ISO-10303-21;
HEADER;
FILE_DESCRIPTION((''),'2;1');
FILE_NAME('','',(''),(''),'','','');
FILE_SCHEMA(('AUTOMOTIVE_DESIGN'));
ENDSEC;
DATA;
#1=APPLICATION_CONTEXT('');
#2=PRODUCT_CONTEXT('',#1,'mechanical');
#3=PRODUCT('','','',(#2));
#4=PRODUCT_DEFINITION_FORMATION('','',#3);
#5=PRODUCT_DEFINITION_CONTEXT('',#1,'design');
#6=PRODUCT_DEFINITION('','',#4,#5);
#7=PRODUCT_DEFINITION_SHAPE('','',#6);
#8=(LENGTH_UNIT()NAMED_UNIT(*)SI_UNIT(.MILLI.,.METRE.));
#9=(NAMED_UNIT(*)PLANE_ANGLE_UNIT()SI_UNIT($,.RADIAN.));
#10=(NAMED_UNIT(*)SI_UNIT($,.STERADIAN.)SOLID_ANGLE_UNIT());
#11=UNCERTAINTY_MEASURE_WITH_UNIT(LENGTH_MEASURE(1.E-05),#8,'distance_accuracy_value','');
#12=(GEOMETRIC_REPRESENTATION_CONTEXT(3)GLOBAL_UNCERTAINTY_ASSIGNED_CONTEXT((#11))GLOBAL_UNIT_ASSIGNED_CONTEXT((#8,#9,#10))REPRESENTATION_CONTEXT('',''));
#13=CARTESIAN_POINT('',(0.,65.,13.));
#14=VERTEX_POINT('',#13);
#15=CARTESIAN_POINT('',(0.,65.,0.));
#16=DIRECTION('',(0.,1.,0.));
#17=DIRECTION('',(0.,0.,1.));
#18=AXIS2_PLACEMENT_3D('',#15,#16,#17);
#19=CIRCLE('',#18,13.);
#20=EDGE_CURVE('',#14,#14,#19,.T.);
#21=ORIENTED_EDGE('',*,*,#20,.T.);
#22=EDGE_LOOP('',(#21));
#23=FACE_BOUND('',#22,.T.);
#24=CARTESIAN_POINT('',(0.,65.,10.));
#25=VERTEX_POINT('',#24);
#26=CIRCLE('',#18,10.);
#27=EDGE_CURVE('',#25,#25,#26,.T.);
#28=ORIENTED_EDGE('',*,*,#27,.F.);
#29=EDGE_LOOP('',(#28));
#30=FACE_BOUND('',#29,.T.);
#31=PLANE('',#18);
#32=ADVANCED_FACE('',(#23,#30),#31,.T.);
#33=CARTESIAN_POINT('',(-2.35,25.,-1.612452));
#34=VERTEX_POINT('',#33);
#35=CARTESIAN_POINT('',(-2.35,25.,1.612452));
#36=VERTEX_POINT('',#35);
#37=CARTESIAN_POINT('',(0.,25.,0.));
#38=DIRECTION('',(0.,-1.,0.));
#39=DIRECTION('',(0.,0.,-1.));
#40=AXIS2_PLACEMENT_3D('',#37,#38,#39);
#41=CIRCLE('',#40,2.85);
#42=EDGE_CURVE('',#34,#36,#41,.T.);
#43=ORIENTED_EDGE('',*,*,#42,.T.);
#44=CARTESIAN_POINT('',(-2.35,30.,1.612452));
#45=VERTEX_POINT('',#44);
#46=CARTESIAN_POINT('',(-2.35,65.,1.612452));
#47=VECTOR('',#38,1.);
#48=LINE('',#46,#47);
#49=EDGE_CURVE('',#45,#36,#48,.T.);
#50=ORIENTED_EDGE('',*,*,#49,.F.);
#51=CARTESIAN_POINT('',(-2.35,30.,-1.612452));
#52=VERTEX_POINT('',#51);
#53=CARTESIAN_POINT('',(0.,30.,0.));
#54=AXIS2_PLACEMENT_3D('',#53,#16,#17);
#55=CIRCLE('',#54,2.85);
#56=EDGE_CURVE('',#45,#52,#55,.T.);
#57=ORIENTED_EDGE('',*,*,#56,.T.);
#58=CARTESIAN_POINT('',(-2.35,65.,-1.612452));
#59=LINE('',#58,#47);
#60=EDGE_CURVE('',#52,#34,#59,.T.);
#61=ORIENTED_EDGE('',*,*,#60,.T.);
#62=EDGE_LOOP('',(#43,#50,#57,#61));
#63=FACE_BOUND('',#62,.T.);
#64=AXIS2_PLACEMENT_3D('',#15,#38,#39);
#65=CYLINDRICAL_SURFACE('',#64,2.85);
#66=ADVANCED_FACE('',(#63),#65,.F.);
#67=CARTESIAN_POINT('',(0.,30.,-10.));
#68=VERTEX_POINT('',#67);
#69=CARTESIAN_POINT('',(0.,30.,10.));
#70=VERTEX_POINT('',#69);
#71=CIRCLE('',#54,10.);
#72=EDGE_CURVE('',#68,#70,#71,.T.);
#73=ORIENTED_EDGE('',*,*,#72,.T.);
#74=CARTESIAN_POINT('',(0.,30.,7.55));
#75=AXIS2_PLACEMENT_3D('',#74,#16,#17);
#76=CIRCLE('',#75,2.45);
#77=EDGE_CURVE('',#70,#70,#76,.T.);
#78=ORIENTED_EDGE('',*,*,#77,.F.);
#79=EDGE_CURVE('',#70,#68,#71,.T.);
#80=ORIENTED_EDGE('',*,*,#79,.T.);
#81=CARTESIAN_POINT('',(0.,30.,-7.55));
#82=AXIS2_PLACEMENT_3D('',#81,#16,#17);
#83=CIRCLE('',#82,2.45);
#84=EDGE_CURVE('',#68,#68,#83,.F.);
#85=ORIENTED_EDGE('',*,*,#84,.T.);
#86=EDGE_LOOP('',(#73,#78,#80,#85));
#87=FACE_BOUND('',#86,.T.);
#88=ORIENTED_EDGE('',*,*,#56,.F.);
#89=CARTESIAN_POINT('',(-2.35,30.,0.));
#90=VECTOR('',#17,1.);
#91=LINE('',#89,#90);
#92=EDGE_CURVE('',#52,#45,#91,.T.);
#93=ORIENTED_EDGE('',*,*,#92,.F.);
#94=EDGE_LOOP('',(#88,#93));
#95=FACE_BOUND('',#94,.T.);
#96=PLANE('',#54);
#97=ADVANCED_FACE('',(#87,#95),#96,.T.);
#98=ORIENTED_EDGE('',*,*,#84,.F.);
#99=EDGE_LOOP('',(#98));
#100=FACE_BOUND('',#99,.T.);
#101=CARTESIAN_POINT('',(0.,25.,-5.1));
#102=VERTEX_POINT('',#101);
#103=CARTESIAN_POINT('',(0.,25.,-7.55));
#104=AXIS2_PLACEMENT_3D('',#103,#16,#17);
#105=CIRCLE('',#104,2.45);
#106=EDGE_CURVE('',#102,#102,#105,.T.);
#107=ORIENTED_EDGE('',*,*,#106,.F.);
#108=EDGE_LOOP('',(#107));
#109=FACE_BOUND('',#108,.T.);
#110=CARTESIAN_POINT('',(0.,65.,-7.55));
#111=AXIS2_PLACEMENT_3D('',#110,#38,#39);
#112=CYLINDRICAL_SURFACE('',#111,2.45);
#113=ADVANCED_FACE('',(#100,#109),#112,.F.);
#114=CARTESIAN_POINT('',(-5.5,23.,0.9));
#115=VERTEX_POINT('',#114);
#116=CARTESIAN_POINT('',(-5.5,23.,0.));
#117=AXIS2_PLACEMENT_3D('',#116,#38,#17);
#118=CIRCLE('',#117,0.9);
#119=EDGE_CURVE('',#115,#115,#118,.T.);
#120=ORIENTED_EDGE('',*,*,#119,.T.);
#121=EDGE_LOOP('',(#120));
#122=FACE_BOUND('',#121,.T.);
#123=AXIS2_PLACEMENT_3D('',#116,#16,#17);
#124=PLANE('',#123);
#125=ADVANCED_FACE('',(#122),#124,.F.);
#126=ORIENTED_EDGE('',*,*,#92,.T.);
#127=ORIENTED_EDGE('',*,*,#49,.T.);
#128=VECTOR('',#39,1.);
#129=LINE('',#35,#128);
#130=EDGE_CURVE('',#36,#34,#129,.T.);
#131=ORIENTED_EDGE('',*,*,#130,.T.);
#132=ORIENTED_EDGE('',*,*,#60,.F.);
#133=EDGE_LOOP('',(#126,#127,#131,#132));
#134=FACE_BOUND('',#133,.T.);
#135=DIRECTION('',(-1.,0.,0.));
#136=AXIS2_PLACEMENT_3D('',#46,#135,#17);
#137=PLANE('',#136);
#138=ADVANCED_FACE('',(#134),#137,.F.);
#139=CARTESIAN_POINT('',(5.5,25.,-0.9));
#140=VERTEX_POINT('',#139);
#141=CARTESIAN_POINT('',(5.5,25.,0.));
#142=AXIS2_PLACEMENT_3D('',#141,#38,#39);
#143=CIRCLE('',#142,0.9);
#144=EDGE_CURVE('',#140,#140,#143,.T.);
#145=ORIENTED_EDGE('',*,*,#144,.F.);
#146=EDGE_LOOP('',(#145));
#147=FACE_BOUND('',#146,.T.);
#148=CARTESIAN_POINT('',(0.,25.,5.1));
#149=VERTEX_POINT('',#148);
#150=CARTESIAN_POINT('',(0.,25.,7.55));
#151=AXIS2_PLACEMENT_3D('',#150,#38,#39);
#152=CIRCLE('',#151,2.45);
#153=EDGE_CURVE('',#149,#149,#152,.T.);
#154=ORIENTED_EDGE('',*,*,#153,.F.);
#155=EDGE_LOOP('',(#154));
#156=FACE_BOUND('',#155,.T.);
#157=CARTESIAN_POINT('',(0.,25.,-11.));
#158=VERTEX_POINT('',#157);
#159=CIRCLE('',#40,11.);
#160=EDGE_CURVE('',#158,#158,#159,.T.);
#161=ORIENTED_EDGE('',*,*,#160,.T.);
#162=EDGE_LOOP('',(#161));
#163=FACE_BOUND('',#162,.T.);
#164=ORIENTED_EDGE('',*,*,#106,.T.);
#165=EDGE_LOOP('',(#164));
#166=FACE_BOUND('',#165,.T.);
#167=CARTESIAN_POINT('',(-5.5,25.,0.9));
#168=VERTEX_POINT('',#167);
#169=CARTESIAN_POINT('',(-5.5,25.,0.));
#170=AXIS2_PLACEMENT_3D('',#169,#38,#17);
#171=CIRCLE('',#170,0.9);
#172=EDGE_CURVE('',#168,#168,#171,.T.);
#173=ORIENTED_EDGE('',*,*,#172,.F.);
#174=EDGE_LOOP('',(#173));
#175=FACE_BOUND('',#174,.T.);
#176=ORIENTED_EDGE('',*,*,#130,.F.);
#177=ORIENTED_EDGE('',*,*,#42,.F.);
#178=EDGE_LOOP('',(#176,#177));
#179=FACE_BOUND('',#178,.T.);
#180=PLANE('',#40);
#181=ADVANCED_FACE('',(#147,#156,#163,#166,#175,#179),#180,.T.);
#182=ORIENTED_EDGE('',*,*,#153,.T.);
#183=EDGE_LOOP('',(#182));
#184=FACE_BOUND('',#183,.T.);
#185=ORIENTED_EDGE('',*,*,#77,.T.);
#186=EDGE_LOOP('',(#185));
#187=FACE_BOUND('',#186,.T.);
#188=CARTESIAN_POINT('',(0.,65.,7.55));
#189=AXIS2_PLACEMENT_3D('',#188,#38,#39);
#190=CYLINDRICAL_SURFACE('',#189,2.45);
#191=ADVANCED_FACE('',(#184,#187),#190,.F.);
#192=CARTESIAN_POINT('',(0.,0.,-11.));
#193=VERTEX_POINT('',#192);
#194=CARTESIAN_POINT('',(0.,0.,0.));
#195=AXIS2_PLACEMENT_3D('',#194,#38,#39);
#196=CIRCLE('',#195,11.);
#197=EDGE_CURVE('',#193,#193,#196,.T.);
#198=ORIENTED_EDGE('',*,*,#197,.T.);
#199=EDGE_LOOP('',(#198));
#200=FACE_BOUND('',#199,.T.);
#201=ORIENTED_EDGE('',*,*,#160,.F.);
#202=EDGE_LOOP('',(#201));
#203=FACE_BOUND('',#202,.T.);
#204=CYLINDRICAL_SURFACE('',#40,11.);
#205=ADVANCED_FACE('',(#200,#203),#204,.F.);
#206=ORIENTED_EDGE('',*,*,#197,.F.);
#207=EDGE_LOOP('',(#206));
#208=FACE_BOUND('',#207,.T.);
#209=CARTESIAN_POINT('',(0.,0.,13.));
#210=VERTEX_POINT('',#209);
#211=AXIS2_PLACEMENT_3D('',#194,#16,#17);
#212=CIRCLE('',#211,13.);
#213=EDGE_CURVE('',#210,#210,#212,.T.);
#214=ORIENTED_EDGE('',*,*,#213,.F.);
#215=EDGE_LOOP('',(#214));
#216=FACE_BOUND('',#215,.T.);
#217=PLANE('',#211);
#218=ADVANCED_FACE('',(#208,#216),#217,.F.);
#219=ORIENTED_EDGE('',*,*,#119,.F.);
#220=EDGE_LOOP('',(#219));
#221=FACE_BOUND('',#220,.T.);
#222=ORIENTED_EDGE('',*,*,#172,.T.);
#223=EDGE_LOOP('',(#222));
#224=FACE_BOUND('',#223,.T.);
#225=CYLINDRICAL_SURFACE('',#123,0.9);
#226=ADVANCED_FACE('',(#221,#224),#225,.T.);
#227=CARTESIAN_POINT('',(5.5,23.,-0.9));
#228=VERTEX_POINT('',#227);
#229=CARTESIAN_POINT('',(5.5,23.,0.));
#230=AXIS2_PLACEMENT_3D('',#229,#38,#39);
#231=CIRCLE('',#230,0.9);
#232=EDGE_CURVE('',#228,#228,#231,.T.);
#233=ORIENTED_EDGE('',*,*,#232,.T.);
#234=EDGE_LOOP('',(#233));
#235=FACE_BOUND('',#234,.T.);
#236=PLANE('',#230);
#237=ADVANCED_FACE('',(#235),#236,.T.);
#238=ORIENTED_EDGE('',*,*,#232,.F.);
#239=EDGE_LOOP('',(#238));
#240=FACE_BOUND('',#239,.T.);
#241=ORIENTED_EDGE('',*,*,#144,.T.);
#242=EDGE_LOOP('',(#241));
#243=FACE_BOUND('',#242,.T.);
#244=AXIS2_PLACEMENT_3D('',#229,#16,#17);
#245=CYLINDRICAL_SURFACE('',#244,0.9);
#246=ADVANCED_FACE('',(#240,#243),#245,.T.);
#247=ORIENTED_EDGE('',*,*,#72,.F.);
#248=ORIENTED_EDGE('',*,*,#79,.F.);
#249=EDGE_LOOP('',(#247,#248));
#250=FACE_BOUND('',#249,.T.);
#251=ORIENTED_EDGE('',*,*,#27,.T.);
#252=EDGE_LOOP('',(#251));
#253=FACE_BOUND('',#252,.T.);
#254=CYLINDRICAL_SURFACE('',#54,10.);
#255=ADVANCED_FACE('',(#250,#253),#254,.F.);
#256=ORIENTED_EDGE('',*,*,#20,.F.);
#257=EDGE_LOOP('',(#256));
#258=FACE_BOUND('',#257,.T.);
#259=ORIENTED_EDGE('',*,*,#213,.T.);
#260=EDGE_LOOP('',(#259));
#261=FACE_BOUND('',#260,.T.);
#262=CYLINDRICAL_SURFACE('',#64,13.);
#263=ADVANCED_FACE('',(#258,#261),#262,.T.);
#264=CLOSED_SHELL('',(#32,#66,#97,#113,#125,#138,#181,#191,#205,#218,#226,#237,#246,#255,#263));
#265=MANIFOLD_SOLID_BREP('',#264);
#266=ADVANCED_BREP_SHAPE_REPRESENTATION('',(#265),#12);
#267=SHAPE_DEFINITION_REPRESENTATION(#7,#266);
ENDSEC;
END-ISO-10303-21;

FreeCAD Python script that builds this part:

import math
import FreeCAD as App
import Part
import Sketcher
from FreeCAD import Vector

doc = App.newDocument("Part")
body = doc.addObject("PartDesign::Body", "Body")

# Sketch on XZ plane
sketch1 = body.newObject("Sketcher::SketchObject", "Sketch")
sketch1.AttachmentSupport = (doc.getObject("XZ_Plane"), [""])
sketch1.MapMode = "FlatFace"
sketch1.addGeometry(Part.Circle(Vector(0, 0, 0), Vector(0, 0, 1), 13), False)
sketch1.addConstraint([
    Sketcher.Constraint("Coincident", 0, 3, -1, 1),
    Sketcher.Constraint("Diameter", 0, 26.0),
])
pad1 = body.newObject("PartDesign::Pad", "Pad")
pad1.Profile = sketch1
pad1.Length = 65
pad1.Reversed = True

# Sketch on XZ plane
sketch2 = body.newObject("Sketcher::SketchObject", "Sketch001")
sketch2.AttachmentSupport = (doc.getObject("XZ_Plane"), [""])
sketch2.MapMode = "FlatFace"
sketch2.addGeometry(Part.Circle(Vector(0, 0, 0), Vector(0, 0, 1), 11), False)
sketch2.addConstraint([
    Sketcher.Constraint("Coincident", 0, 3, -1, 1),
    Sketcher.Constraint("Diameter", 0, 22.0),
])
pocket1 = body.newObject("PartDesign::Pocket", "Pocket")
pocket1.Profile = sketch2
pocket1.Length = 25

# Sketch on XZ plane
sketch3 = body.newObject("Sketcher::SketchObject", "Sketch002")
sketch3.AttachmentSupport = (doc.getObject("XZ_Plane"), [""])
sketch3.MapMode = "FlatFace"
sketch3.AttachmentOffset = App.Placement(Vector(0, 0, -65), App.Rotation())
sketch3.addGeometry(Part.Circle(Vector(0, 0, 0), Vector(0, 0, 1), 10), False)
sketch3.addConstraint([
    Sketcher.Constraint("Coincident", 0, 3, -1, 1),
    Sketcher.Constraint("Diameter", 0, 20.0),
])
pocket2 = body.newObject("PartDesign::Pocket", "Pocket001")
pocket2.Profile = sketch3
pocket2.Length = 35
pocket2.Reversed = True

# Sketch on XZ plane
sketch4 = body.newObject("Sketcher::SketchObject", "Sketch003")
sketch4.AttachmentSupport = (doc.getObject("XZ_Plane"), [""])
sketch4.MapMode = "FlatFace"
sketch4.AttachmentOffset = App.Placement(Vector(0, 0, -25), App.Rotation())
sketch4.addGeometry([
    Part.LineSegment(Vector(-2.4, 1.6, 0), Vector(-2.4, -1.6, 0)),
    Part.ArcOfCircle(Part.Circle(Vector(0, 0, 0), Vector(0, 0, 1), 2.9), math.radians(-146), math.radians(146)),
], False)
sketch4.addConstraint([
    Sketcher.Constraint("Coincident", 0, 1, 1, 2),
    Sketcher.Constraint("Coincident", 1, 1, 0, 2),
    Sketcher.Constraint("Vertical", 0),
    Sketcher.Constraint("Coincident", 1, 3, -1, 1),
    Sketcher.Constraint("Radius", 1, 2.85),
    Sketcher.Constraint("DistanceX", 0, 1, -1, 1, 2.35),
])
pocket3 = body.newObject("PartDesign::Pocket", "Pocket002")
pocket3.Profile = sketch4
pocket3.Type = "ThroughAll"

# Sketch on XZ plane
sketch5 = body.newObject("Sketcher::SketchObject", "Sketch004")
sketch5.AttachmentSupport = (doc.getObject("XZ_Plane"), [""])
sketch5.MapMode = "FlatFace"
sketch5.AttachmentOffset = App.Placement(Vector(0, 0, -25), App.Rotation())
sketch5.addGeometry([
    Part.Circle(Vector(5.5, 0, 0), Vector(0, 0, 1), 0.9),
    Part.Circle(Vector(-5.5, 0, 0), Vector(0, 0, 1), 0.9),
], False)
sketch5.addConstraint([
    Sketcher.Constraint("Equal", 0, 1),
    Sketcher.Constraint("Symmetric", 0, 3, 1, 3, -1, 1),
    Sketcher.Constraint("PointOnObject", 0, 3, -1),
    Sketcher.Constraint("Diameter", 0, 1.8),
    Sketcher.Constraint("DistanceX", 1, 3, 0, 3, 11.0),
])
pad2 = body.newObject("PartDesign::Pad", "Pad001")
pad2.Profile = sketch5
pad2.Length = 2

# Sketch on XZ plane
sketch6 = body.newObject("Sketcher::SketchObject", "Sketch005")
sketch6.AttachmentSupport = (doc.getObject("XZ_Plane"), [""])
sketch6.MapMode = "FlatFace"
sketch6.AttachmentOffset = App.Placement(Vector(0, 0, -25), App.Rotation())
sketch6.addGeometry([
    Part.Circle(Vector(0, 7.5, 0), Vector(0, 0, 1), 2.5),
    Part.Circle(Vector(0, -7.5, 0), Vector(0, 0, 1), 2.5),
], False)
sketch6.addConstraint([
    Sketcher.Constraint("Equal", 0, 1),
    Sketcher.Constraint("Symmetric", 0, 3, 1, 3, -1, 1),
    Sketcher.Constraint("PointOnObject", 0, 3, -2),
    Sketcher.Constraint("Diameter", 0, 4.9),
    Sketcher.Constraint("DistanceY", 1, 3, 0, 3, 15.1),
])
pocket4 = body.newObject("PartDesign::Pocket", "Pocket003")
pocket4.Profile = sketch6
pocket4.Type = "ThroughAll"

doc.recompute()
